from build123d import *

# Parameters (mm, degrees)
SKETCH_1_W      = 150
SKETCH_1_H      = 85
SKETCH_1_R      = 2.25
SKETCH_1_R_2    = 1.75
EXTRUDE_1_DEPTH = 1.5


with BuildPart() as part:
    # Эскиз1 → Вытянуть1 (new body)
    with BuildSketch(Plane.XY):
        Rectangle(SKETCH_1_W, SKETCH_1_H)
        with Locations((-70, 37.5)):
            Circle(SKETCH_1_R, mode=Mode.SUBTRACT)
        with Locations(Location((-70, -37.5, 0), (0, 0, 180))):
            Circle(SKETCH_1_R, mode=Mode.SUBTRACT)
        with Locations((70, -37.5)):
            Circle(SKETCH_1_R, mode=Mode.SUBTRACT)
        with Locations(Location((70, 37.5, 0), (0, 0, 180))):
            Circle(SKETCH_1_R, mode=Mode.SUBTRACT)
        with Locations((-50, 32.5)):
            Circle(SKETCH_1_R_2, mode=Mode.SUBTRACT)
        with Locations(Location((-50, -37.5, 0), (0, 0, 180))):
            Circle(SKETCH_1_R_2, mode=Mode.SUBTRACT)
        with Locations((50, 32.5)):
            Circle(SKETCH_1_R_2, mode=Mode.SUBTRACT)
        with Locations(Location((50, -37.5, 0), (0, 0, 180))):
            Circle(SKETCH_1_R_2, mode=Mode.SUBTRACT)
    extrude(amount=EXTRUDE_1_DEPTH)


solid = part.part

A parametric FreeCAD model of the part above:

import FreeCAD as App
import Part
import Sketcher
from FreeCAD import Vector
Q = App.Units.Quantity


def add_polygon(sketch, points):
    """Adds a closed chain of lines whose ends are joined by coincident constraints."""
    first, n = sketch.GeometryCount, len(points)
    for a, b in zip(points, points[1:] + points[:1]):
        sketch.addGeometry(Part.LineSegment(App.Vector(*a, 0), App.Vector(*b, 0)), False)
    for i in range(n):
        sketch.addConstraint(Sketcher.Constraint("Coincident", first + i, 2, first + (i + 1) % n, 1))

doc = App.newDocument("Part")
body = doc.addObject("PartDesign::Body", "Body")

# Sketch on XY plane
sketch1 = doc.addObject("Sketcher::SketchObject", "Sketch")
body.addObject(sketch1)
sketch1.AttachmentSupport = (doc.XY_Plane, [""])
sketch1.MapMode = "FlatFace"
add_polygon(sketch1, [(-75, 42.5), (-75, -42.5), (75, -42.5), (75, 42.5)])  # lines 0-3
sketch1.addGeometry(Part.Circle(Vector(-70, -37.5, 0), Vector(0, 0, 1), 2.2), False)  # 4
sketch1.addGeometry(Part.Circle(Vector(-50, -37.5, 0), Vector(0, 0, 1), 1.8), False)  # 5
sketch1.addGeometry(Part.Circle(Vector(50, -37.5, 0), Vector(0, 0, 1), 1.8), False)  # 6
sketch1.addGeometry(Part.Circle(Vector(70, -37.5, 0), Vector(0, 0, 1), 2.2), False)  # 7
sketch1.addGeometry(Part.Circle(Vector(-70, 37.5, 0), Vector(0, 0, 1), 2.2), False)  # 8
sketch1.addGeometry(Part.Circle(Vector(-50, 32.5, 0), Vector(0, 0, 1), 1.8), False)  # 9
sketch1.addGeometry(Part.Circle(Vector(50, 32.5, 0), Vector(0, 0, 1), 1.8), False)  # 10
sketch1.addGeometry(Part.Circle(Vector(70, 37.5, 0), Vector(0, 0, 1), 2.2), False)  # 11
sketch1.addConstraint([
    Sketcher.Constraint("Vertical", 0),
    Sketcher.Constraint("Horizontal", 1),
    Sketcher.Constraint("Vertical", 2),
    Sketcher.Constraint("Horizontal", 3),
    Sketcher.Constraint("Equal", 5, 6),
    Sketcher.Constraint("Equal", 4, 7),
    Sketcher.Constraint("Equal", 7, 8),
    Sketcher.Constraint("Equal", 6, 9),
    Sketcher.Constraint("Equal", 9, 10),
    Sketcher.Constraint("Equal", 8, 11),
    Sketcher.Constraint("Symmetric", 7, 3, 8, 3, -1, 1),
    Sketcher.Constraint("Symmetric", 4, 3, 11, 3, -1, 1),
    Sketcher.Constraint("Symmetric", 0, 2, 2, 2, -1, 1),
    Sketcher.Constraint("Symmetric", 5, 3, 6, 3, -2),
    Sketcher.Constraint("Symmetric", 4, 3, 7, 3, -2),
    Sketcher.Constraint("Symmetric", 9, 3, 10, 3, -2),
    Sketcher.Constraint("Horizontal", 4, 3, 5, 3),
    Sketcher.Constraint("Vertical", 5, 3, 9, 3),
    Sketcher.Constraint("Diameter", 4, Q("4.5 mm")),
    Sketcher.Constraint("Diameter", 5, Q("3.5 mm")),
    Sketcher.Constraint("DistanceX", 1, 1, 1, 2, Q("150 mm")),
    Sketcher.Constraint("DistanceY", 0, 2, 0, 1, Q("85 mm")),
    Sketcher.Constraint("DistanceX", 4, 3, -1, 1, Q("70 mm")),
    Sketcher.Constraint("DistanceX", 5, 3, -1, 1, Q("50 mm")),
    Sketcher.Constraint("DistanceY", 4, 3, 8, 3, Q("75 mm")),
    Sketcher.Constraint("DistanceY", 9, 3, 8, 3, Q("5 mm")),
])
pad1 = doc.addObject("PartDesign::Pad", "Pad")
body.addObject(pad1)
pad1.Profile = sketch1
pad1.Length = 1.5

doc.recompute()
